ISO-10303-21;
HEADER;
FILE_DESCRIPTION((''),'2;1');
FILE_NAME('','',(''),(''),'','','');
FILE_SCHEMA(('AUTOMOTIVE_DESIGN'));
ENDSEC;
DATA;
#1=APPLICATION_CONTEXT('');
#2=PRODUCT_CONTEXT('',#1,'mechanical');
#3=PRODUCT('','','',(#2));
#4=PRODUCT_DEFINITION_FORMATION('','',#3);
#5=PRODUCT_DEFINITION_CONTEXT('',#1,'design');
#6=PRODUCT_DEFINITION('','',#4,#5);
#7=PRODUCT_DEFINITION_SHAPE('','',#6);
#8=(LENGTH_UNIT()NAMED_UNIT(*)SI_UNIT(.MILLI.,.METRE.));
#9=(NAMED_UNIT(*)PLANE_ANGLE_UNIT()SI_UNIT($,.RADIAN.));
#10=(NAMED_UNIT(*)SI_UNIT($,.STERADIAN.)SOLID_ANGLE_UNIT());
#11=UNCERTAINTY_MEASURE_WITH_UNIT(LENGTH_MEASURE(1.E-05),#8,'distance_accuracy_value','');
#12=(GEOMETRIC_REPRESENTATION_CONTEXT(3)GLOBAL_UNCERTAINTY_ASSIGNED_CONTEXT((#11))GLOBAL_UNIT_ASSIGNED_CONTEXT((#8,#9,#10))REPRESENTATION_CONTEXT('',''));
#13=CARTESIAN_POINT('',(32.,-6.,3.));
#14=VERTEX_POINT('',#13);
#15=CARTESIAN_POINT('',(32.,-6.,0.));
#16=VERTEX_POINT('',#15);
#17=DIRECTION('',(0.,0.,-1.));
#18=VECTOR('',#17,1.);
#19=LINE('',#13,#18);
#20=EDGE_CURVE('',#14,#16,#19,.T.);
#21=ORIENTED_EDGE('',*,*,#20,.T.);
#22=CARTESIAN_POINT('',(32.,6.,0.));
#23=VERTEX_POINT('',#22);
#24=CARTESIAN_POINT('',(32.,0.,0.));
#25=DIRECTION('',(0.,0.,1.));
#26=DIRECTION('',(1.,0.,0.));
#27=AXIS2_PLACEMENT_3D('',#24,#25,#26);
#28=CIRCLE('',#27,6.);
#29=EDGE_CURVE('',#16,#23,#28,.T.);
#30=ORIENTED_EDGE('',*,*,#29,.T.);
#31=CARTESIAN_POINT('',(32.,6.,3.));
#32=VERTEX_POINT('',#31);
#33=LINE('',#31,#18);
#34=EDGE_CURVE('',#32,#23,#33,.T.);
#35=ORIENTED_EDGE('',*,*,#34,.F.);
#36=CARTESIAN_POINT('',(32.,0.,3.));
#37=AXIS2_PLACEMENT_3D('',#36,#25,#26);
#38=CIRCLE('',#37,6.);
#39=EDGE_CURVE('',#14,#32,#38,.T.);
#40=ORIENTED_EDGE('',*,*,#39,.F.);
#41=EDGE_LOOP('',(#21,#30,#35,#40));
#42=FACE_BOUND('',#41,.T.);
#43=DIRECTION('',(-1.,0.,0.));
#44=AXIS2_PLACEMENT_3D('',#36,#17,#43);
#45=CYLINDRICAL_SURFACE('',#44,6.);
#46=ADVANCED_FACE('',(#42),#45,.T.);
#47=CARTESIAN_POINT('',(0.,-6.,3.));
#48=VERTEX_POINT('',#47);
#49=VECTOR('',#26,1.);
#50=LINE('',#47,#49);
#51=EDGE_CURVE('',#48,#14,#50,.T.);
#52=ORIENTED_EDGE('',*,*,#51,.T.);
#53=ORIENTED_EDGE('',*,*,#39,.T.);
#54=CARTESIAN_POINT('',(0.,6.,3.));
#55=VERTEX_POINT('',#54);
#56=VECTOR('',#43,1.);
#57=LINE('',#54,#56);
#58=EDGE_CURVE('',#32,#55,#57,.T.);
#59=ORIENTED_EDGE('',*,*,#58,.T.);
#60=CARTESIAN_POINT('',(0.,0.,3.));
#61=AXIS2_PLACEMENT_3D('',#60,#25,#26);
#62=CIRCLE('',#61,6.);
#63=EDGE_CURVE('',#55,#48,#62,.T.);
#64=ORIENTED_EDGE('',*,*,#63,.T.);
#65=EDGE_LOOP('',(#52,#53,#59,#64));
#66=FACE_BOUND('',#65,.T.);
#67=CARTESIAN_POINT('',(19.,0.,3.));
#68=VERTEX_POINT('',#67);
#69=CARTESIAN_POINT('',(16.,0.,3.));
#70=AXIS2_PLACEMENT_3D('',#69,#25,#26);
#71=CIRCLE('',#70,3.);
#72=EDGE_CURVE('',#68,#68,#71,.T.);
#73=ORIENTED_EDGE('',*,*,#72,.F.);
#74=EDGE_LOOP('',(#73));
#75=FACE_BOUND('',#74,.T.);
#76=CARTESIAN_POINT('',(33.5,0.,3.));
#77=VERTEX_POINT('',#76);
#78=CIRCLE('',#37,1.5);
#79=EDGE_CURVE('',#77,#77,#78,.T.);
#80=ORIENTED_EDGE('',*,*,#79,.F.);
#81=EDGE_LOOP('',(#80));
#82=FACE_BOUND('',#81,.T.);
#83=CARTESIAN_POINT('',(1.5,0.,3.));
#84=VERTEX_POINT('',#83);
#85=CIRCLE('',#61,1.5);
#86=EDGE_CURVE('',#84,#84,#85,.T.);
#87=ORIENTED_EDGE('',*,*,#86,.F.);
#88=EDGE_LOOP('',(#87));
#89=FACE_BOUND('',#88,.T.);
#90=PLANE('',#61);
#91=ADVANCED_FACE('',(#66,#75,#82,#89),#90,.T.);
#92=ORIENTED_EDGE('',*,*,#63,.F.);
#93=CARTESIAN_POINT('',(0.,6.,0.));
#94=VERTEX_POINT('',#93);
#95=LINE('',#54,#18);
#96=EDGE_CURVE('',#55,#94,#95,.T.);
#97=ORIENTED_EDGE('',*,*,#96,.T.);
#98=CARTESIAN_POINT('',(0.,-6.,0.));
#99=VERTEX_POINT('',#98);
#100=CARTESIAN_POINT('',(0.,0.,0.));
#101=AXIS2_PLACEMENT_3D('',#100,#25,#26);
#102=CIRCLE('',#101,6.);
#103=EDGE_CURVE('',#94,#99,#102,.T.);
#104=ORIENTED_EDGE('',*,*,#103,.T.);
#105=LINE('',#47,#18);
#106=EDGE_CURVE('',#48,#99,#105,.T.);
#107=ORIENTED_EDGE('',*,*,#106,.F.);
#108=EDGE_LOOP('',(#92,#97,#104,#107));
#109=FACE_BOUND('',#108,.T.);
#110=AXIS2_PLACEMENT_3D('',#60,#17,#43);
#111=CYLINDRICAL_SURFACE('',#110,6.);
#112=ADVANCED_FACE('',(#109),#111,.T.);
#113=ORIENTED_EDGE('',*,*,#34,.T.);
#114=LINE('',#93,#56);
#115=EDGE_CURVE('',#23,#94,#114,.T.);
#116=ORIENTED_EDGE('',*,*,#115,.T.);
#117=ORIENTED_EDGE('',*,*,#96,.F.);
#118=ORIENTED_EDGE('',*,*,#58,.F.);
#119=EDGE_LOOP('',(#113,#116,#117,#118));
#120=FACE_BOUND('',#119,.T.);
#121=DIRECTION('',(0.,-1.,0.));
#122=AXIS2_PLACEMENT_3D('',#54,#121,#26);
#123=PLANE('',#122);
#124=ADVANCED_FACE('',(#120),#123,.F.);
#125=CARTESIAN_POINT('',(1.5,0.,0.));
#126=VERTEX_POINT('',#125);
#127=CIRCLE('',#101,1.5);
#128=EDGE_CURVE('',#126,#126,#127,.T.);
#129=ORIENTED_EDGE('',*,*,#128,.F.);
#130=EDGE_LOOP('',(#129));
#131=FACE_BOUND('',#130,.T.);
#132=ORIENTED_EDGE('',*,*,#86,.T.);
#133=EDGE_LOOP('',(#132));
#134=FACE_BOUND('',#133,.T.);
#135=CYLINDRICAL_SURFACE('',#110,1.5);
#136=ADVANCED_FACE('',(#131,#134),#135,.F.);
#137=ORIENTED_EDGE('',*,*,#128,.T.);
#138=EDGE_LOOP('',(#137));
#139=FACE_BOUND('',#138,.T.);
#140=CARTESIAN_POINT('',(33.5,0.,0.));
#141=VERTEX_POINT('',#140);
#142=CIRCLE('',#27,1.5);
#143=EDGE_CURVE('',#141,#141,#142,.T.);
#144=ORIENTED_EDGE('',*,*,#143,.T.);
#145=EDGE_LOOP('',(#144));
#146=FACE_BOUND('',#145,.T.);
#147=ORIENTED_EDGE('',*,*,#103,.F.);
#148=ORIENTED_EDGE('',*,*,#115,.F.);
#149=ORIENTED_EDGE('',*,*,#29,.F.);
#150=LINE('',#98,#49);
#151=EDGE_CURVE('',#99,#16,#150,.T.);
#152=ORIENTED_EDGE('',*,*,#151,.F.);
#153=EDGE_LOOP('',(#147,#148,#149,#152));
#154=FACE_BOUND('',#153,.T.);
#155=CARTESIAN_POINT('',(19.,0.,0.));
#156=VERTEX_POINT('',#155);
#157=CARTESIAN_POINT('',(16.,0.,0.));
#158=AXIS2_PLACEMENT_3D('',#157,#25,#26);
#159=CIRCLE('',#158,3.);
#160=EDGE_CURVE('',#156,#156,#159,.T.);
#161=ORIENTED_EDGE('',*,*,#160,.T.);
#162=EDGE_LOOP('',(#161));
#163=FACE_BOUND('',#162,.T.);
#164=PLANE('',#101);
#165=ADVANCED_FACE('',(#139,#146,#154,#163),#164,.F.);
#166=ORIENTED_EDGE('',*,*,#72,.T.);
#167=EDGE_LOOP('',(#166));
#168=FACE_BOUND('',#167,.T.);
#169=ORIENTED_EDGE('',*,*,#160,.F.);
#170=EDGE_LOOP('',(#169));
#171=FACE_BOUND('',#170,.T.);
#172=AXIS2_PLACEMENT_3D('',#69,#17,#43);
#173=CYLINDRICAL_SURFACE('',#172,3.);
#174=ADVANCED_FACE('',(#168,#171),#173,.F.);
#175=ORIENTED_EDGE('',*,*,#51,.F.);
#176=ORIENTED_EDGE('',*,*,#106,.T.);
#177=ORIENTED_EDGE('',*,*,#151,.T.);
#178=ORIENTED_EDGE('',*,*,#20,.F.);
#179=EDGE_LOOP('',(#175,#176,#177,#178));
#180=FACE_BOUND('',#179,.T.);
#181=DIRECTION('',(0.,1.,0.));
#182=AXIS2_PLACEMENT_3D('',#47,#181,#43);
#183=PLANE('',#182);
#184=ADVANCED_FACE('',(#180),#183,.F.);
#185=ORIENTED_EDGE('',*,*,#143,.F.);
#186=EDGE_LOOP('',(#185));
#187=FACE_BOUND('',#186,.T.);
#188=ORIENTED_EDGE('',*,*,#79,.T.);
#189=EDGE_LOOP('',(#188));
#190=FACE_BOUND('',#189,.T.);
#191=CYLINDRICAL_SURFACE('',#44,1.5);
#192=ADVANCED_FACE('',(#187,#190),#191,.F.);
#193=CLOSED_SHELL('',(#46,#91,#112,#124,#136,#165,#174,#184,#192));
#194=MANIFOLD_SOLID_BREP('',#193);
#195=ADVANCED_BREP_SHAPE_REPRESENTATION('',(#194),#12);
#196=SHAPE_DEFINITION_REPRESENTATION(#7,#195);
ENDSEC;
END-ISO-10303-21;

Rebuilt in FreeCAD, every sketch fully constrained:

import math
import FreeCAD as App
import Part
import Sketcher
Q = App.Units.Quantity

doc = App.newDocument("Part")
body = doc.addObject("PartDesign::Body", "Body")

# Sketch on XY plane
sketch1 = body.newObject("Sketcher::SketchObject", "Sketch")
sketch1.AttachmentSupport = (doc.getObject("XY_Plane"), [""])
sketch1.MapMode = "FlatFace"
sketch1.addGeometry([
    Part.LineSegment(App.Vector(32, 6, 0), App.Vector(0, 6, 0)),  # 0
    Part.ArcOfCircle(Part.Circle(App.Vector(0, 0, 0), App.Vector(0, 0, 1), 6), math.radians(90), math.radians(270)),  # 1
    Part.LineSegment(App.Vector(0, -6, 0), App.Vector(32, -6, 0)),  # 2
    Part.ArcOfCircle(Part.Circle(App.Vector(32, 0, 0), App.Vector(0, 0, 1), 6), math.radians(-90), math.radians(90)),  # 3
    Part.Circle(App.Vector(32, 0, 0), App.Vector(0, 0, 1), 1.5),  # 4
    Part.Circle(App.Vector(16, 0, 0), App.Vector(0, 0, 1), 3),  # 5
    Part.Circle(App.Vector(0, 0, 0), App.Vector(0, 0, 1), 1.5),  # 6
], False)
sketch1.addConstraint([
    Sketcher.Constraint("Tangent", 0, 2, 1, 1),
    Sketcher.Constraint("Tangent", 1, 2, 2, 1),
    Sketcher.Constraint("Tangent", 2, 2, 3, 1),
    Sketcher.Constraint("Tangent", 3, 2, 0, 1),
    Sketcher.Constraint("Horizontal", 0),
    Sketcher.Constraint("Horizontal", 2),
    Sketcher.Constraint("Coincident", 1, 3, -1, 1),
    Sketcher.Constraint("Coincident", 6, 3, -1, 1),
    Sketcher.Constraint("Coincident", 4, 3, 3, 3),
    Sketcher.Constraint("Equal", 4, 6),
    Sketcher.Constraint("PointOnObject", 5, 3, -1),
    Sketcher.Constraint("Diameter", 4, Q("3 mm")),
    Sketcher.Constraint("Diameter", 5, Q("6 mm")),
    Sketcher.Constraint("Radius", 1, Q("6 mm")),
    Sketcher.Constraint("DistanceX", 0, 2, 0, 1, Q("32 mm")),
    Sketcher.Constraint("DistanceX", -1, 1, 5, 3, Q("16 mm")),
])
pad1 = body.newObject("PartDesign::Pad", "Pad")
pad1.Profile = sketch1
pad1.Length = 3

doc.recompute()
